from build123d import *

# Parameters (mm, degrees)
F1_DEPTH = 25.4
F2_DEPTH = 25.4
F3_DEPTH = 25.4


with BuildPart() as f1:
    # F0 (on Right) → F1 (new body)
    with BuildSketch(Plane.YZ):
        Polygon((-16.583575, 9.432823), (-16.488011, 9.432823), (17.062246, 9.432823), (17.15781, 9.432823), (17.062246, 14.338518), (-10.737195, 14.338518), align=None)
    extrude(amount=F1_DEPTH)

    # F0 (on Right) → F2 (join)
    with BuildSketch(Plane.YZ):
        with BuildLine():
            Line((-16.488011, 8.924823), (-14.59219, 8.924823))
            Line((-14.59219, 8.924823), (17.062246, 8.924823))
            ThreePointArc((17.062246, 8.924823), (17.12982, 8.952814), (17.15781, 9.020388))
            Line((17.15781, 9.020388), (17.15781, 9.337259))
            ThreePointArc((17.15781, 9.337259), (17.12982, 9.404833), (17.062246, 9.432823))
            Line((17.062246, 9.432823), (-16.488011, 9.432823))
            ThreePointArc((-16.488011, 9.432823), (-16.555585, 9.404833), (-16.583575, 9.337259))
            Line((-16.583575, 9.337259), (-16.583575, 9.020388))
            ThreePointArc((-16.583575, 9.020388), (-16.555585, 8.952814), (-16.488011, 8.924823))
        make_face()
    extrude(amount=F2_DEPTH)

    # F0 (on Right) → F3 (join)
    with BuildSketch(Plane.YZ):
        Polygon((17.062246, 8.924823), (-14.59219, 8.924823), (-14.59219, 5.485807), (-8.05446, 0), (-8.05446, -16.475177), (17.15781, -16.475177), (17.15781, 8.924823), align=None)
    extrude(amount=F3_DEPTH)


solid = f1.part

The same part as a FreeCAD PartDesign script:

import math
import FreeCAD as App
import Part
import Sketcher

V = App.Vector
Q = App.Units.Quantity

doc = App.newDocument("Part")
params = doc.addObject("Spreadsheet::Sheet", "Params")
for row, (alias, value) in enumerate([
    ("pad1_length", "1 in"),
    ("pad2_length", "1 in"),
    ("sketch3_height", "1 in"),
    ("sketch3_width", "1.25 in"),
    ("sketch3_length", "0.336 in"),
    ("pad3_length", "1 in"),
], start=1):
    params.set(f"A{row}", alias)
    params.set(f"B{row}", "=" + value)
    params.setAlias(f"B{row}", alias)

body = doc.addObject("PartDesign::Body", "Body")

sketch1 = body.newObject("Sketcher::SketchObject", "Sketch")
sketch1.AttachmentSupport = (doc.getObject("YZ_Plane"), [""])
sketch1.MapMode = "FlatFace"
sketch1.addGeometry([
    Part.LineSegment(V(-16.583575, 9.432823, 0), V(17.15781, 9.432823, 0)),
    Part.LineSegment(V(17.15781, 9.432823, 0), V(17.062246, 14.338518, 0)),
    Part.LineSegment(V(17.062246, 14.338518, 0), V(-10.737195, 14.338518, 0)),
    Part.LineSegment(V(-10.737195, 14.338518, 0), V(-16.583575, 9.432823, 0)),
], False)
sketch1.addConstraint([
    Sketcher.Constraint("Coincident", 0, 2, 1, 1),
    Sketcher.Constraint("Coincident", 1, 2, 2, 1),
    Sketcher.Constraint("Coincident", 2, 2, 3, 1),
    Sketcher.Constraint("Coincident", 3, 2, 0, 1),
    Sketcher.Constraint("Horizontal", 0),
    Sketcher.Constraint("Horizontal", 2),
    Sketcher.Constraint("Angle", 3, Q("-140.000002 deg")),
    Sketcher.Constraint("DistanceX", 2, 2, 2, 1, 27.799441),
    Sketcher.Constraint("DistanceX", 0, 1, 0, 2, 33.741385),
    Sketcher.Constraint("DistanceX", -1, 1, 0, 2, 17.15781),
    Sketcher.Constraint("DistanceX", 3, 2, 2, 2, 5.84638),
    Sketcher.Constraint("DistanceY", -1, 1, 0, 2, 9.432823),
])
pad1 = body.newObject("PartDesign::Pad", "Pad")
pad1.Profile = sketch1
pad1.setExpression("Length", "Params.pad1_length")

sketch2 = body.newObject("Sketcher::SketchObject", "Sketch001")
sketch2.AttachmentSupport = (doc.getObject("YZ_Plane"), [""])
sketch2.MapMode = "FlatFace"
sketch2.addGeometry([
    Part.LineSegment(V(-16.488011, 8.924823, 0), V(17.062246, 8.924823, 0)),
    Part.ArcOfCircle(Part.Circle(V(17.062244, 9.020389, 0), V(0, 0, 1), 0.095566), math.radians(-89.999074), math.radians(-0.000327)),
    Part.LineSegment(V(17.15781, 9.020388, 0), V(17.15781, 9.337259, 0)),
    Part.ArcOfCircle(Part.Circle(V(17.062246, 9.337259, 0), V(0, 0, 1), 0.095564), math.radians(-0.000097), math.radians(90.000097)),
    Part.LineSegment(V(17.062246, 9.432823, 0), V(-16.488011, 9.432823, 0)),
    Part.ArcOfCircle(Part.Circle(V(-16.488011, 9.337259, 0), V(0, 0, 1), 0.095564), math.radians(89.999903), math.radians(180.000097)),
    Part.LineSegment(V(-16.583575, 9.337259, 0), V(-16.583575, 9.020388, 0)),
    Part.ArcOfCircle(Part.Circle(V(-16.488009, 9.020389, 0), V(0, 0, 1), 0.095566), math.radians(-179.999673), math.radians(-90.000926)),
], False)
sketch2.addConstraint([
    Sketcher.Constraint("Coincident", 0, 2, 1, 1),
    Sketcher.Constraint("Coincident", 1, 2, 2, 1),
    Sketcher.Constraint("Tangent", 2, 2, 3, 1),
    Sketcher.Constraint("Tangent", 3, 2, 4, 1),
    Sketcher.Constraint("Tangent", 4, 2, 5, 1),
    Sketcher.Constraint("Tangent", 5, 2, 6, 1),
    Sketcher.Constraint("Coincident", 6, 2, 7, 1),
    Sketcher.Constraint("Coincident", 7, 2, 0, 1),
    Sketcher.Constraint("Horizontal", 0),
    Sketcher.Constraint("Vertical", 2),
    Sketcher.Constraint("Horizontal", 4),
    Sketcher.Constraint("Vertical", 6),
    Sketcher.Constraint("Equal", 1, 3),
    Sketcher.Constraint("Equal", 3, 5),
    Sketcher.Constraint("Equal", 5, 7),
    Sketcher.Constraint("Horizontal", 7, 3, 1, 2),
    Sketcher.Constraint("Horizontal", 1, 2, 6, 2),
    Sketcher.Constraint("Vertical", 3, 3, 0, 2),
    Sketcher.Constraint("Vertical", 4, 2, 7, 2),
    Sketcher.Constraint("DistanceY", 0, 2, 3, 2, Q("0.02 in")),
    Sketcher.Constraint("Radius", 1, 0.095566),
    Sketcher.Constraint("DistanceX", 0, 1, 0, 2, 33.550257),
    Sketcher.Constraint("DistanceY", -1, 1, 1, 3, 9.020389),
    Sketcher.Constraint("DistanceX", 5, 3, -1, 1, 16.488011),
])
pad2 = body.newObject("PartDesign::Pad", "Pad001")
pad2.Profile = sketch2
pad2.setExpression("Length", "Params.pad2_length")

sketch3 = body.newObject("Sketcher::SketchObject", "Sketch002")
sketch3.AttachmentSupport = (doc.getObject("YZ_Plane"), [""])
sketch3.MapMode = "FlatFace"
sketch3.addGeometry([
    Part.LineSegment(V(-14.59219, 8.924823, 0), V(-14.59219, 5.485807, 0)),
    Part.LineSegment(V(-14.59219, 5.485807, 0), V(-8.05446, 0, 0)),
    Part.LineSegment(V(-8.05446, 0, 0), V(-8.05446, -16.475177, 0)),
    Part.LineSegment(V(-8.05446, -16.475177, 0), V(17.15781, -16.475177, 0)),
    Part.LineSegment(V(17.15781, -16.475177, 0), V(17.15781, 8.924823, 0)),
    Part.LineSegment(V(17.15781, 8.924823, 0), V(-14.59219, 8.924823, 0)),
], False)
sketch3.addConstraint([
    Sketcher.Constraint("Coincident", 0, 2, 1, 1),
    Sketcher.Constraint("Coincident", 1, 2, 2, 1),
    Sketcher.Constraint("Coincident", 2, 2, 3, 1),
    Sketcher.Constraint("Coincident", 3, 2, 4, 1),
    Sketcher.Constraint("Coincident", 4, 2, 5, 1),
    Sketcher.Constraint("Coincident", 5, 2, 0, 1),
    Sketcher.Constraint("Vertical", 0),
    Sketcher.Constraint("Vertical", 2),
    Sketcher.Constraint("Horizontal", 3),
    Sketcher.Constraint("Vertical", 4),
    Sketcher.Constraint("Horizontal", 5),
    Sketcher.Constraint("PointOnObject", 1, 2, -1),
    Sketcher.Constraint("DistanceY", 4, 1, 4, 2, Q("1 in")),
    Sketcher.Constraint("Angle", 1, Q("-40.000001 deg")),
    Sketcher.Constraint("DistanceX", 5, 2, 5, 1, Q("1.25 in")),
    Sketcher.Constraint("Distance", 1, Q("0.336 in")),
    Sketcher.Constraint("DistanceY", 0, 2, 0, 1, 3.439016),
    Sketcher.Constraint("DistanceX", 0, 2, -1, 1, 14.59219),
])
sketch3.setExpression("Constraints[12]", "Params.sketch3_height")
sketch3.setExpression("Constraints[14]", "Params.sketch3_width")
sketch3.setExpression("Constraints[15]", "Params.sketch3_length")
pad3 = body.newObject("PartDesign::Pad", "Pad002")
pad3.Profile = sketch3
pad3.setExpression("Length", "Params.pad3_length")

doc.recompute()
